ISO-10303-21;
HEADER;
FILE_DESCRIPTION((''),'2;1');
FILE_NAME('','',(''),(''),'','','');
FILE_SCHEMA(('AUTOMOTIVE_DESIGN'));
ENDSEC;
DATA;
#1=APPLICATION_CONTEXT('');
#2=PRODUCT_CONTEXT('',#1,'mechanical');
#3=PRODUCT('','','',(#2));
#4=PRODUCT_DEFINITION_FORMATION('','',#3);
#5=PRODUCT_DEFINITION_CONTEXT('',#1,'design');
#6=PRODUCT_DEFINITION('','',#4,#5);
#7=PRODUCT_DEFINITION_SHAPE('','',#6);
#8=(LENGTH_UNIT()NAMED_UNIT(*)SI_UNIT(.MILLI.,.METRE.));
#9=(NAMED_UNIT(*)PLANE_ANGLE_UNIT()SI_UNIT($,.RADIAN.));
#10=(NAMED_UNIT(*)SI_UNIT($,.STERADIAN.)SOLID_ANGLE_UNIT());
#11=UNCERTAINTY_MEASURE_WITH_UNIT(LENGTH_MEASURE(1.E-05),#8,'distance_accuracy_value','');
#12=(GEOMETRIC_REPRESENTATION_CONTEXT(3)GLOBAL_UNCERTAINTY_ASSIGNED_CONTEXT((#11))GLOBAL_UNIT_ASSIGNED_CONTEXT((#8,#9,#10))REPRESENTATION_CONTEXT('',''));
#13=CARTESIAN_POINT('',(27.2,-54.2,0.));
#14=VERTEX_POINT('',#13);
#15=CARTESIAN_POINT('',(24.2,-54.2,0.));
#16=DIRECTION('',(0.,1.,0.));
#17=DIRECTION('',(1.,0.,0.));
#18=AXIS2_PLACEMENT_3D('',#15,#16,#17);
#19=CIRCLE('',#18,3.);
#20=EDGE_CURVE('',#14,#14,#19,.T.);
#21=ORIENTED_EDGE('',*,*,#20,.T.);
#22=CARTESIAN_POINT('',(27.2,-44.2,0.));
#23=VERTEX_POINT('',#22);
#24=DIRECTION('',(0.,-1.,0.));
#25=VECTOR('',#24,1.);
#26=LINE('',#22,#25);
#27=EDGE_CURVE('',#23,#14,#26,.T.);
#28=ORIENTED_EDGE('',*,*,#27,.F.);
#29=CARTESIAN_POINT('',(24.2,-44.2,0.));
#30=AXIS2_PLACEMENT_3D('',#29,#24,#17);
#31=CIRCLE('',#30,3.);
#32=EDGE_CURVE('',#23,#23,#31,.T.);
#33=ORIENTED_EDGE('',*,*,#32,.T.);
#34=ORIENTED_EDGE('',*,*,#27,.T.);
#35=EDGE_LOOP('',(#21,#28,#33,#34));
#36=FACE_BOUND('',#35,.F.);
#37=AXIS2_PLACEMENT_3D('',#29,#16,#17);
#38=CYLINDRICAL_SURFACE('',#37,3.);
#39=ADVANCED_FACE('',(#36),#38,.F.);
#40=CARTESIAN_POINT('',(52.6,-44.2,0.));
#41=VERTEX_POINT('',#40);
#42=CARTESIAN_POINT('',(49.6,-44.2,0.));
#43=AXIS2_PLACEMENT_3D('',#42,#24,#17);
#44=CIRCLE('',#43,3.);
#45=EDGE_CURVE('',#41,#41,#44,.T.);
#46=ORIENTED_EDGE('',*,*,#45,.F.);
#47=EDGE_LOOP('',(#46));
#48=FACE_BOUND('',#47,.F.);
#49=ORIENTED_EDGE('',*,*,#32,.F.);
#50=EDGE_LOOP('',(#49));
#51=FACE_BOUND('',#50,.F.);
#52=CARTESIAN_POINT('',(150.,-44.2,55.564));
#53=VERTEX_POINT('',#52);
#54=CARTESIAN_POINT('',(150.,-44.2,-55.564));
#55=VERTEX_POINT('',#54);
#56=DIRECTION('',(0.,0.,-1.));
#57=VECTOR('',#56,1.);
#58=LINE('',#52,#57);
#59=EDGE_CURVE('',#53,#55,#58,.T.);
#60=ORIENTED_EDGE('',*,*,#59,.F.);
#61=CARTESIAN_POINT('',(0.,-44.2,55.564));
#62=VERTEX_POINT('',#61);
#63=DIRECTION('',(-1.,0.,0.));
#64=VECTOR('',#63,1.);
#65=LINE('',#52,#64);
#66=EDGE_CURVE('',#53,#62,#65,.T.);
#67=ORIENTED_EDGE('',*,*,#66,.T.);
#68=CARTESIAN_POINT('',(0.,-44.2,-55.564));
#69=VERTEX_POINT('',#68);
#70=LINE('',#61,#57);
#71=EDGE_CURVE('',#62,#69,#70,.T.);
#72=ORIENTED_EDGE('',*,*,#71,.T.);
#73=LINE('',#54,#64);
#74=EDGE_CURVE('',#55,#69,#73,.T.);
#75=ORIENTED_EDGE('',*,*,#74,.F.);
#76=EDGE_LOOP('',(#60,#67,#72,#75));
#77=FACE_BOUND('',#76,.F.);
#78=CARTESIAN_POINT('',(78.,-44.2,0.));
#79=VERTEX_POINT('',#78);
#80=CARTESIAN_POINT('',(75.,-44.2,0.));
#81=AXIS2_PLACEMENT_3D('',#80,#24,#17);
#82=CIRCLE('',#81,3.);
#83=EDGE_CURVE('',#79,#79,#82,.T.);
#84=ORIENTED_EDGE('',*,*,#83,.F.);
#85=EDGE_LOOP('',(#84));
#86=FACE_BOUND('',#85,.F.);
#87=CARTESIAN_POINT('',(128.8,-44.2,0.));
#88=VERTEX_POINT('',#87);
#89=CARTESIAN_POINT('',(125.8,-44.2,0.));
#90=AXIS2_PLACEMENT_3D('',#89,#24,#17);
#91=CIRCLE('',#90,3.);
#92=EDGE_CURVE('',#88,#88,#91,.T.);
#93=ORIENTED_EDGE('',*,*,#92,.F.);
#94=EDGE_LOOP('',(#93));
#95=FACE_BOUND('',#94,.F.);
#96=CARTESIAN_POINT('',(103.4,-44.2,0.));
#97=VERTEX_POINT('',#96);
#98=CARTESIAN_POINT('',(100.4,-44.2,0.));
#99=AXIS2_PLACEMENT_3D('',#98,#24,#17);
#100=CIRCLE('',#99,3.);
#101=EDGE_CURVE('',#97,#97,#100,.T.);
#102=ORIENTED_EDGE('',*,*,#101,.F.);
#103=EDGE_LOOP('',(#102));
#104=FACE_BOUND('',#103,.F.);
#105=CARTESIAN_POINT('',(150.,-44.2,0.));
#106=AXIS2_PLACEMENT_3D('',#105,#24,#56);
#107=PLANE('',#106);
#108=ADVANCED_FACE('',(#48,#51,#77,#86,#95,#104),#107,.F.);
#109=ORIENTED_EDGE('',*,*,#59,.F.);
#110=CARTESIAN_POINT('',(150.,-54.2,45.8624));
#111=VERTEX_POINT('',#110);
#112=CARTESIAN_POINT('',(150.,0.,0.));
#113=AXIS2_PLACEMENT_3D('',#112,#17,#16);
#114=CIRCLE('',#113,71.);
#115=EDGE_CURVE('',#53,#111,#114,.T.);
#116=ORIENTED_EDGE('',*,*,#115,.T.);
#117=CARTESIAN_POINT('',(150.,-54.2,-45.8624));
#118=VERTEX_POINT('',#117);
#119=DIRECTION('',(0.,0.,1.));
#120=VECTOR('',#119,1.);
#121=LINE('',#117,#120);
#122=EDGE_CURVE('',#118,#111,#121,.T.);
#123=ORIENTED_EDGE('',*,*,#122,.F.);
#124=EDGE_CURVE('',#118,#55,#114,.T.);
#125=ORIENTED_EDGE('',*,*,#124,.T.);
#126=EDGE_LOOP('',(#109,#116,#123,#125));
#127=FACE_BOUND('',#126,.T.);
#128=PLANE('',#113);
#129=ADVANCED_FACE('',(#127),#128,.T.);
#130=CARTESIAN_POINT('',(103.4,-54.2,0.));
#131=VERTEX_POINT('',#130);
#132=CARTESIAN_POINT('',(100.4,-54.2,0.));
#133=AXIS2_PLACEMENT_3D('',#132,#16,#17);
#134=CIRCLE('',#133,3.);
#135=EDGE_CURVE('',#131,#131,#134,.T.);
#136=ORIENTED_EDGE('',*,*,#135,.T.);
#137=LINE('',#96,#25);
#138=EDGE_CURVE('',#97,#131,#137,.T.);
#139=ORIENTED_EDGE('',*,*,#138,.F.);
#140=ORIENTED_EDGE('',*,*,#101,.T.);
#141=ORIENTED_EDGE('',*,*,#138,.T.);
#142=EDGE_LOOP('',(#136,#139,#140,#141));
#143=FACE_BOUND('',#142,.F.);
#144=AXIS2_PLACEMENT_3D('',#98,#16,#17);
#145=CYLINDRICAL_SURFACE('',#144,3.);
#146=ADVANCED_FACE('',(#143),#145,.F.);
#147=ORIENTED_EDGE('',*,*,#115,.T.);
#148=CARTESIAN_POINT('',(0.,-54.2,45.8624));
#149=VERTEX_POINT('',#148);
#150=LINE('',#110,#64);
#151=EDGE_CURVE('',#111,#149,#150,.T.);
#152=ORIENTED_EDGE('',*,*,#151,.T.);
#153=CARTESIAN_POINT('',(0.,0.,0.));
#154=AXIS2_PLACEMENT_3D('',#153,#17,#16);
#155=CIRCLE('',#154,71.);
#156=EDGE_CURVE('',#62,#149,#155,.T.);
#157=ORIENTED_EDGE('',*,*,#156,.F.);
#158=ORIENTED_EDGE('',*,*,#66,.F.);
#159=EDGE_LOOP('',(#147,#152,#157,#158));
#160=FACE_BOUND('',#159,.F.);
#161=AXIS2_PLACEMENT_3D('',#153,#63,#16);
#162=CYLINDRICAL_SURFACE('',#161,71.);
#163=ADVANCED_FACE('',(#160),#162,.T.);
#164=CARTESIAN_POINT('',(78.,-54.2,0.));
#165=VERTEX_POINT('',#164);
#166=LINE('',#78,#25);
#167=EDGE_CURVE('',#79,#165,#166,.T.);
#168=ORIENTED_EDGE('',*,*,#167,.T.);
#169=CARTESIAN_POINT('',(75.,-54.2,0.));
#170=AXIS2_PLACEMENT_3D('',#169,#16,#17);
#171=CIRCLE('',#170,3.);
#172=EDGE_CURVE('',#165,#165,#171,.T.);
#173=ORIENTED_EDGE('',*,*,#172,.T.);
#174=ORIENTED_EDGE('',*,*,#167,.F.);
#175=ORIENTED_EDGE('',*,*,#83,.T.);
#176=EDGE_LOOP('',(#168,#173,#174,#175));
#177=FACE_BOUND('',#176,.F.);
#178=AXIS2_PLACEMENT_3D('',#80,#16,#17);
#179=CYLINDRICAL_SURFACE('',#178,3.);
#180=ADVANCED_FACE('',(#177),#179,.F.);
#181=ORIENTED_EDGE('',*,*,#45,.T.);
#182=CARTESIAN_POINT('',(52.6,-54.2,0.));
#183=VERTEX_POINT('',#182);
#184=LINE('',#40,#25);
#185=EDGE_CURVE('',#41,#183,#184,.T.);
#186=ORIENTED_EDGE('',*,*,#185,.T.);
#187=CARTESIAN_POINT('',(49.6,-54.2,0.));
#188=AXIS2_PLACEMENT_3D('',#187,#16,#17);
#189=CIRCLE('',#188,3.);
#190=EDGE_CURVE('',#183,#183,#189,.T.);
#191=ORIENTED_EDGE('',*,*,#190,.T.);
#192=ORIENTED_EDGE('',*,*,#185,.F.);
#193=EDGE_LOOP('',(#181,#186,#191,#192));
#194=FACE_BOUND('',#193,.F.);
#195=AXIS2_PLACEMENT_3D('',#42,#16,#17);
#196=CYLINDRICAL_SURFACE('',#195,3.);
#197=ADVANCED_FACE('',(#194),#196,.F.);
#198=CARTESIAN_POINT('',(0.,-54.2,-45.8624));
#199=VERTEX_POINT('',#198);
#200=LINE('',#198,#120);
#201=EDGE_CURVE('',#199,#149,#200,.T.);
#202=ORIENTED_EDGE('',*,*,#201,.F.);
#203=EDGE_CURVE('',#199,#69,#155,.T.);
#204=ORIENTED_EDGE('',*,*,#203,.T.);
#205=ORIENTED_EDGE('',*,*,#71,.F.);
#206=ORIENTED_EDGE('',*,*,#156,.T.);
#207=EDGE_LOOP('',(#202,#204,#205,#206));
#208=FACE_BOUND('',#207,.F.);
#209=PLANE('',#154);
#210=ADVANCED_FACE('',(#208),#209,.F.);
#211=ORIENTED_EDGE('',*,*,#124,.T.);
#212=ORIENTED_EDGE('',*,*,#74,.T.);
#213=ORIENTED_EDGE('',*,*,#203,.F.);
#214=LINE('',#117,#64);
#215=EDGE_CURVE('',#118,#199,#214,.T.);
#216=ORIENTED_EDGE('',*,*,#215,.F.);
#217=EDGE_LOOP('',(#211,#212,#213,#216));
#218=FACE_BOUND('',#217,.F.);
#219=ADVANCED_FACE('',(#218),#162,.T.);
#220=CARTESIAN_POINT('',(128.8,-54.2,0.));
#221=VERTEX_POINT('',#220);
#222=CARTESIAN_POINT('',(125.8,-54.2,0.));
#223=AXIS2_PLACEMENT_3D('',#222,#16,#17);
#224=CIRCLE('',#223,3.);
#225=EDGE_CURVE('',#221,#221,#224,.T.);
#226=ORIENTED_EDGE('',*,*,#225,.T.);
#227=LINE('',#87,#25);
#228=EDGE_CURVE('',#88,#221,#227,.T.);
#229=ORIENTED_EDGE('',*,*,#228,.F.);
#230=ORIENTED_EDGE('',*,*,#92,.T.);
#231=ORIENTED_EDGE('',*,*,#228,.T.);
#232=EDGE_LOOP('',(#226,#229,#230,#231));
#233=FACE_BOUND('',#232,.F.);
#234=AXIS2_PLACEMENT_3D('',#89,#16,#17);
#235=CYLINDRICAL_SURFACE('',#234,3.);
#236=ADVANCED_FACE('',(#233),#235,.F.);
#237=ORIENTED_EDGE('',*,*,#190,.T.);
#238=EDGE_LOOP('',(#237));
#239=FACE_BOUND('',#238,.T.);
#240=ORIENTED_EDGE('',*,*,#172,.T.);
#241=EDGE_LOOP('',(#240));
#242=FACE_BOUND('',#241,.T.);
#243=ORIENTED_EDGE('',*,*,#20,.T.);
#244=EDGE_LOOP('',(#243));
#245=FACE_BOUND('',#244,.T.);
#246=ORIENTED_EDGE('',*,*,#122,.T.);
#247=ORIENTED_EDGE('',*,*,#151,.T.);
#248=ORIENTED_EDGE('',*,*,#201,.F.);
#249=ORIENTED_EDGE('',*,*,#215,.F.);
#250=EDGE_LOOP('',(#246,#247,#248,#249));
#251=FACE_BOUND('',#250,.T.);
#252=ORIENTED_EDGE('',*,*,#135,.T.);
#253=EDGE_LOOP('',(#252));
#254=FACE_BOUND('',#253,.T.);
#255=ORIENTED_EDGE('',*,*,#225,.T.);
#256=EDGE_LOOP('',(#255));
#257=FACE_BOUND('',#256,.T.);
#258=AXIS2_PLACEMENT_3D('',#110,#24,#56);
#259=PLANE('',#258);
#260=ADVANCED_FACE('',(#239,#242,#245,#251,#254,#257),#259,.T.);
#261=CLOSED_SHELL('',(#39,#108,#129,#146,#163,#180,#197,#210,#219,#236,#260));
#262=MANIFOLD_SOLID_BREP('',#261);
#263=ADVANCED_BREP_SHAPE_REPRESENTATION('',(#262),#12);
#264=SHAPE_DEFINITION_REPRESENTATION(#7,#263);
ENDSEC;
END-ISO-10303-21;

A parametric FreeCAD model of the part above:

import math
import FreeCAD as App
import Part
import Sketcher

V = App.Vector
Q = App.Units.Quantity

doc = App.newDocument("Part")
body = doc.addObject("PartDesign::Body", "Body")

sketch1 = doc.addObject("Sketcher::SketchObject", "Sketch")
body.addObject(sketch1)
sketch1.AttachmentSupport = (doc.YZ_Plane, [""])
sketch1.MapMode = "FlatFace"
sketch1.addGeometry(Part.Circle(V(0, 0, 0), V(0, 0, 1), 71), False)
sketch1.addConstraint(Sketcher.Constraint("Coincident", 0, 3, -1, 1))
sketch1.addConstraint(Sketcher.Constraint("Diameter", 0, Q("142 mm")))
pad1 = doc.addObject("PartDesign::Pad", "Pad")
body.addObject(pad1)
pad1.Profile = sketch1
pad1.Length = 150

sketch2 = doc.addObject("Sketcher::SketchObject", "Sketch001")
body.addObject(sketch2)
sketch2.AttachmentSupport = (doc.YZ_Plane, [""])
sketch2.MapMode = "FlatFace"
sketch2.AttachmentOffset = App.Placement(V(0, 0, 150), App.Rotation())
sketch2.addGeometry(Part.ArcOfCircle(Part.Circle(V(0, 0, 0), V(0, 0, 1), 71), math.radians(-129), math.radians(129)), False)
sketch2.addGeometry(Part.LineSegment(V(-44, -56, 0), V(-44, 56, 0)), False)
sketch2.addConstraint(Sketcher.Constraint("Coincident", 0, 1, 1, 1))
sketch2.addConstraint(Sketcher.Constraint("Coincident", 1, 2, 0, 2))
sketch2.addConstraint(Sketcher.Constraint("Vertical", 1))
sketch2.addConstraint(Sketcher.Constraint("Coincident", 0, 3, -1, 1))
sketch2.addConstraint(Sketcher.Constraint("Radius", 0, Q("71 mm")))
sketch2.addConstraint(Sketcher.Constraint("DistanceX", 0, 1, -1, 1, Q("44.2 mm")))
pocket1 = doc.addObject("PartDesign::Pocket", "Pocket")
body.addObject(pocket1)
pocket1.Profile = sketch2
pocket1.Length = 150

sketch3 = doc.addObject("Sketcher::SketchObject", "Sketch002")
body.addObject(sketch3)
sketch3.AttachmentSupport = (doc.YZ_Plane, [""])
sketch3.MapMode = "FlatFace"
sketch3.AttachmentOffset = App.Placement(V(0, 0, 150), App.Rotation())
sketch3.addGeometry(Part.LineSegment(V(-54, -46, 0), V(-54, 46, 0)), False)
sketch3.addGeometry(Part.ArcOfCircle(Part.Circle(V(0, 0, 0), V(0, 0, 1), 71), math.radians(140), math.radians(220)), False)
sketch3.addConstraint(Sketcher.Constraint("Coincident", 0, 1, 1, 2))
sketch3.addConstraint(Sketcher.Constraint("Coincident", 1, 1, 0, 2))
sketch3.addConstraint(Sketcher.Constraint("Vertical", 0))
sketch3.addConstraint(Sketcher.Constraint("Coincident", 1, 3, -1, 1))
sketch3.addConstraint(Sketcher.Constraint("Radius", 1, Q("71 mm")))
sketch3.addConstraint(Sketcher.Constraint("DistanceX", 0, 1, -1, 1, Q("54.2 mm")))
pocket2 = doc.addObject("PartDesign::Pocket", "Pocket001")
body.addObject(pocket2)
pocket2.Profile = sketch3
pocket2.Length = 150

sketch4 = doc.addObject("Sketcher::SketchObject", "Sketch003")
body.addObject(sketch4)
sketch4.AttachmentSupport = (doc.XZ_Plane, [""])
sketch4.MapMode = "FlatFace"
sketch4.AttachmentOffset = App.Placement(V(0, 0, 44.2), App.Rotation())
sketch4.addGeometry(Part.Circle(V(24.2, 0, 0), V(0, 0, 1), 3), False)
sketch4.addGeometry(Part.Circle(V(125.8, 0, 0), V(0, 0, 1), 3), False)
sketch4.addGeometry(Part.Circle(V(100.4, 0, 0), V(0, 0, 1), 3), False)
sketch4.addGeometry(Part.Circle(V(75, 0, 0), V(0, 0, 1), 3), False)
sketch4.addGeometry(Part.Circle(V(49.6, 0, 0), V(0, 0, 1), 3), False)
sketch4.addConstraint(Sketcher.Constraint("Equal", 0, 1))
sketch4.addConstraint(Sketcher.Constraint("Equal", 1, 2))
sketch4.addConstraint(Sketcher.Constraint("Equal", 2, 3))
sketch4.addConstraint(Sketcher.Constraint("Equal", 3, 4))
sketch4.addConstraint(Sketcher.Constraint("PointOnObject", 0, 3, -1))
sketch4.addConstraint(Sketcher.Constraint("PointOnObject", 1, 3, -1))
sketch4.addConstraint(Sketcher.Constraint("PointOnObject", 2, 3, -1))
sketch4.addConstraint(Sketcher.Constraint("PointOnObject", 3, 3, -1))
sketch4.addConstraint(Sketcher.Constraint("PointOnObject", 4, 3, -1))
sketch4.addConstraint(Sketcher.Constraint("Diameter", 0, Q("6 mm")))
sketch4.addConstraint(Sketcher.Constraint("DistanceX", -1, 1, 3, 3, Q("75 mm")))
sketch4.addConstraint(Sketcher.Constraint("DistanceX", 2, 3, 1, 3, Q("25.4 mm")))
sketch4.addConstraint(Sketcher.Constraint("DistanceX", 3, 3, 2, 3, Q("25.4 mm")))
sketch4.addConstraint(Sketcher.Constraint("DistanceX", 4, 3, 3, 3, Q("25.4 mm")))
sketch4.addConstraint(Sketcher.Constraint("DistanceX", 0, 3, 4, 3, Q("25.4 mm")))
pocket3 = doc.addObject("PartDesign::Pocket", "Pocket002")
body.addObject(pocket3)
pocket3.Profile = sketch4
pocket3.Length = 10
pocket3.Reversed = True

doc.recompute()
